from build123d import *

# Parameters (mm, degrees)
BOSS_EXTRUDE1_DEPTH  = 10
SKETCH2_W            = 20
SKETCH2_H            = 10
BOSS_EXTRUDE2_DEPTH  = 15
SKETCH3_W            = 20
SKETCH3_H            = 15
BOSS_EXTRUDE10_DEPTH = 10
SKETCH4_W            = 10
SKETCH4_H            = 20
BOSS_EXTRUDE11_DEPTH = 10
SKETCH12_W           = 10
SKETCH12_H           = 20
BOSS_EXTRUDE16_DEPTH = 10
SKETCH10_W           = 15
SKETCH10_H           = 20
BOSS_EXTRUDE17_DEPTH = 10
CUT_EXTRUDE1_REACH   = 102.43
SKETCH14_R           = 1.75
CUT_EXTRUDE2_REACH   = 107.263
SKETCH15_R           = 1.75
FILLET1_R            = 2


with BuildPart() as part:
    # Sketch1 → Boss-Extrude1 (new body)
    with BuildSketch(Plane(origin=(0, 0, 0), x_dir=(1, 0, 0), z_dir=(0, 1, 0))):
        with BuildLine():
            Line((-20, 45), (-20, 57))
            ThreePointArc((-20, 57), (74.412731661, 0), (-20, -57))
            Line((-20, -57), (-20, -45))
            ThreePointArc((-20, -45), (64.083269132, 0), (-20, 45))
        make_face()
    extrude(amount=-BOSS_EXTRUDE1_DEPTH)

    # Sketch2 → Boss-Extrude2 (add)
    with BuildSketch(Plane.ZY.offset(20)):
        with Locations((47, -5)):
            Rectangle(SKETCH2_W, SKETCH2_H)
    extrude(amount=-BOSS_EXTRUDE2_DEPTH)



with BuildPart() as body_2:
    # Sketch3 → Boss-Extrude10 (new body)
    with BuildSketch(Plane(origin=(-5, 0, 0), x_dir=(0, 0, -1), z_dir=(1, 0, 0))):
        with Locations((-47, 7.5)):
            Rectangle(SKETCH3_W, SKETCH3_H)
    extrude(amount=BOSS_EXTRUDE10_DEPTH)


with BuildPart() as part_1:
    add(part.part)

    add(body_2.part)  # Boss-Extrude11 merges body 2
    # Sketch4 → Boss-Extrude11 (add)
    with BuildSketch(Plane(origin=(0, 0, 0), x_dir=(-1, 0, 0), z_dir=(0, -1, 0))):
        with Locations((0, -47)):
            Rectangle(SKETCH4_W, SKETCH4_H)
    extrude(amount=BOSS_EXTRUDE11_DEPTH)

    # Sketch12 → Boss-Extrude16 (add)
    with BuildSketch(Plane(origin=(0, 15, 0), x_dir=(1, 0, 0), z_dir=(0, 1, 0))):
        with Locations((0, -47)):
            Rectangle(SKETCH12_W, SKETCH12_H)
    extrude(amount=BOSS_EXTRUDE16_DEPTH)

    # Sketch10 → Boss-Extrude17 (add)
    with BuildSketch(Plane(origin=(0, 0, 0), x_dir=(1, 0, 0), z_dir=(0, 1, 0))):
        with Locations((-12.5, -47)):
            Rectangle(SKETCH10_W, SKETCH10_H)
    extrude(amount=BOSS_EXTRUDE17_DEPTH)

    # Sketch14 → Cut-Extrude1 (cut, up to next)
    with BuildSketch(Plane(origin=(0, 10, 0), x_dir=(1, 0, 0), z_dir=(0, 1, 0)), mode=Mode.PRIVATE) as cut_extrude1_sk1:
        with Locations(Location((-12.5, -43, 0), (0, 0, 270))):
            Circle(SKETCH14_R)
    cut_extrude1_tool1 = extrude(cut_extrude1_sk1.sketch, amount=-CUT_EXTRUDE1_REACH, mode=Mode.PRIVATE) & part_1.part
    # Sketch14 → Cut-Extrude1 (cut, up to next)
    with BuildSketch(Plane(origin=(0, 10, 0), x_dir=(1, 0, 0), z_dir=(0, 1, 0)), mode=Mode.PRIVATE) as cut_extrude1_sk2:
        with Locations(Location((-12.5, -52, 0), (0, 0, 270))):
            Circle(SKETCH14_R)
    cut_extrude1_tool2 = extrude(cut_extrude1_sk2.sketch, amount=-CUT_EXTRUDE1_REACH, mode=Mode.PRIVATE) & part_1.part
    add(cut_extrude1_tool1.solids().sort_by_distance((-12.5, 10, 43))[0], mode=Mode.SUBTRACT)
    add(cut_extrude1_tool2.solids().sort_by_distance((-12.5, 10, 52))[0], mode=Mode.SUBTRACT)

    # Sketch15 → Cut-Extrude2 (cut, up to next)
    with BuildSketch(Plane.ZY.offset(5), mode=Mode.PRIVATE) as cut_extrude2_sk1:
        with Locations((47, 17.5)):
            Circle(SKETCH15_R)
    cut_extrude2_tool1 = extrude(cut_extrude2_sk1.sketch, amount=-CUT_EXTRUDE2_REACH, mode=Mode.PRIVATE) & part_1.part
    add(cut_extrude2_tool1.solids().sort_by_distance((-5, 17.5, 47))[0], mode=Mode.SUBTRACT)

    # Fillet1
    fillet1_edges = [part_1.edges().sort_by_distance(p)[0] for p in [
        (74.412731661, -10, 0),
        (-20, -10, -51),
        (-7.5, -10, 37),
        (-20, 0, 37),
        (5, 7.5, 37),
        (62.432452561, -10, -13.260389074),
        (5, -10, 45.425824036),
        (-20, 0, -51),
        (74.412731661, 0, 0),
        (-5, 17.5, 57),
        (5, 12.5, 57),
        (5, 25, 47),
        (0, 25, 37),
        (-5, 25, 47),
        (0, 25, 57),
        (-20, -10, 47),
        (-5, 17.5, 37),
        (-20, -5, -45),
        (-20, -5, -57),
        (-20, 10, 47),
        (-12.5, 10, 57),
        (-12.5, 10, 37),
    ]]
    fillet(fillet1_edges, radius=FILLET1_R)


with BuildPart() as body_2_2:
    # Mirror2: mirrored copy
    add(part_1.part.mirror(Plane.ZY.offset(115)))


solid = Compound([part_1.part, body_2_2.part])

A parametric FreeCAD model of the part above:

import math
import FreeCAD as App
import Part
import Sketcher
from FreeCAD import Vector


def edges_at(feature, points):
    """Names of the edges that pass closest to the given points."""
    edges = feature.Shape.Edges
    near = lambda p: min(range(len(edges)), key=lambda i: edges[i].distToShape(Part.Vertex(*p))[0])
    return sorted({f"Edge{near(p) + 1}" for p in points})

doc = App.newDocument("Part")
body = doc.addObject("PartDesign::Body", "Body")

# Sketch on XZ plane
sketch1 = body.newObject("Sketcher::SketchObject", "Sketch")
sketch1.AttachmentSupport = (doc.getObject("XZ_Plane"), [""])
sketch1.MapMode = "FlatFace"
sketch1.addGeometry([
    Part.LineSegment(Vector(-20, -57, 0), Vector(-20, -45, 0)),
    Part.ArcOfCircle(Part.Circle(Vector(10, 0, 0), Vector(0, 0, 1), 54), math.radians(-124), math.radians(124)),
    Part.LineSegment(Vector(-20, 45, 0), Vector(-20, 57, 0)),
    Part.ArcOfCircle(Part.Circle(Vector(10, 0, 0), Vector(0, 0, 1), 64), math.radians(-118), math.radians(118)),
], False)
sketch1.addConstraint([
    Sketcher.Constraint("Coincident", 0, 2, 1, 1),
    Sketcher.Constraint("Coincident", 1, 2, 2, 1),
    Sketcher.Constraint("Coincident", 2, 2, 3, 2),
    Sketcher.Constraint("Coincident", 3, 1, 0, 1),
    Sketcher.Constraint("Vertical", 0),
    Sketcher.Constraint("Vertical", 2),
    Sketcher.Constraint("Coincident", 3, 3, 1, 3),
    Sketcher.Constraint("Symmetric", 0, 2, 1, 2, -1),
    Sketcher.Constraint("DistanceY", 0, 1, 0, 2, 12.0),
    Sketcher.Constraint("DistanceX", -1, 1, 1, 3, 10.0),
    Sketcher.Constraint("DistanceX", 0, 2, -1, 1, 20.0),
    Sketcher.Constraint("DistanceY", 0, 2, -1, 1, 45.0),
])
pad1 = body.newObject("PartDesign::Pad", "Pad")
pad1.Profile = sketch1
pad1.Length = 10

# Sketch on YZ plane
sketch2 = body.newObject("Sketcher::SketchObject", "Sketch001")
sketch2.AttachmentSupport = (doc.getObject("YZ_Plane"), [""])
sketch2.MapMode = "FlatFace"
sketch2.AttachmentOffset = App.Placement(Vector(0, 0, -20), App.Rotation())
sketch2.addGeometry([
    Part.LineSegment(Vector(0, 37, 0), Vector(-10, 37, 0)),
    Part.LineSegment(Vector(-10, 37, 0), Vector(-10, 57, 0)),
    Part.LineSegment(Vector(-10, 57, 0), Vector(0, 57, 0)),
    Part.LineSegment(Vector(0, 57, 0), Vector(0, 37, 0)),
], False)
sketch2.addConstraint([
    Sketcher.Constraint("Coincident", 0, 2, 1, 1),
    Sketcher.Constraint("Coincident", 1, 2, 2, 1),
    Sketcher.Constraint("Coincident", 2, 2, 3, 1),
    Sketcher.Constraint("Coincident", 3, 2, 0, 1),
    Sketcher.Constraint("Horizontal", 0),
    Sketcher.Constraint("Vertical", 1),
    Sketcher.Constraint("Horizontal", 2),
    Sketcher.Constraint("Vertical", 3),
    Sketcher.Constraint("PointOnObject", 2, 2, -2),
    Sketcher.Constraint("DistanceX", 0, 2, 0, 1, 10.0),
    Sketcher.Constraint("DistanceY", 1, 1, 1, 2, 20.0),
    Sketcher.Constraint("DistanceY", -1, 1, 0, 2, 37.0),
])
pad2 = body.newObject("PartDesign::Pad", "Pad001")
pad2.Profile = sketch2
pad2.Length = 15
body2 = doc.addObject("PartDesign::Body", "Body001")

# Sketch on YZ plane
sketch3 = body2.newObject("Sketcher::SketchObject", "Sketch002")
sketch3.AttachmentSupport = (doc.getObject("YZ_Plane001"), [""])
sketch3.MapMode = "FlatFace"
sketch3.AttachmentOffset = App.Placement(Vector(0, 0, -5), App.Rotation())
sketch3.addGeometry([
    Part.LineSegment(Vector(15, 57, 0), Vector(0, 57, 0)),
    Part.LineSegment(Vector(0, 57, 0), Vector(0, 37, 0)),
    Part.LineSegment(Vector(0, 37, 0), Vector(15, 37, 0)),
    Part.LineSegment(Vector(15, 37, 0), Vector(15, 57, 0)),
], False)
sketch3.addConstraint([
    Sketcher.Constraint("Coincident", 0, 2, 1, 1),
    Sketcher.Constraint("Coincident", 1, 2, 2, 1),
    Sketcher.Constraint("Coincident", 2, 2, 3, 1),
    Sketcher.Constraint("Coincident", 3, 2, 0, 1),
    Sketcher.Constraint("Horizontal", 0),
    Sketcher.Constraint("Vertical", 1),
    Sketcher.Constraint("Horizontal", 2),
    Sketcher.Constraint("Vertical", 3),
    Sketcher.Constraint("PointOnObject", 0, 2, -2),
    Sketcher.Constraint("DistanceX", 0, 2, 0, 1, 15.0),
    Sketcher.Constraint("DistanceY", 1, 2, 1, 1, 20.0),
    Sketcher.Constraint("DistanceY", -1, 1, 0, 2, 57.0),
])
pad3 = body2.newObject("PartDesign::Pad", "Pad002")
pad3.Profile = sketch3
pad3.Length = 10
doc.recompute()

boolean = body.newObject("PartDesign::Boolean", "Boolean")
boolean.Type = "Fuse"
boolean.addObjects([body2])

# Sketch on XZ plane
sketch4 = body.newObject("Sketcher::SketchObject", "Sketch003")
sketch4.AttachmentSupport = (doc.getObject("XZ_Plane"), [""])
sketch4.MapMode = "FlatFace"
sketch4.addGeometry([
    Part.LineSegment(Vector(5, 37, 0), Vector(5, 57, 0)),
    Part.LineSegment(Vector(5, 57, 0), Vector(-5, 57, 0)),
    Part.LineSegment(Vector(-5, 57, 0), Vector(-5, 37, 0)),
    Part.LineSegment(Vector(-5, 37, 0), Vector(5, 37, 0)),
], False)
sketch4.addConstraint([
    Sketcher.Constraint("Coincident", 0, 2, 1, 1),
    Sketcher.Constraint("Coincident", 1, 2, 2, 1),
    Sketcher.Constraint("Coincident", 2, 2, 3, 1),
    Sketcher.Constraint("Coincident", 3, 2, 0, 1),
    Sketcher.Constraint("Vertical", 0),
    Sketcher.Constraint("Horizontal", 1),
    Sketcher.Constraint("Vertical", 2),
    Sketcher.Constraint("Horizontal", 3),
    Sketcher.Constraint("DistanceX", 1, 2, 1, 1, 10.0),
    Sketcher.Constraint("DistanceY", 0, 1, 0, 2, 20.0),
    Sketcher.Constraint("DistanceX", -1, 1, 0, 2, 5.0),
    Sketcher.Constraint("DistanceY", -1, 1, 0, 2, 57.0),
])
pad4 = body.newObject("PartDesign::Pad", "Pad003")
pad4.Profile = sketch4
pad4.Length = 10

# Sketch on XZ plane
sketch5 = body.newObject("Sketcher::SketchObject", "Sketch004")
sketch5.AttachmentSupport = (doc.getObject("XZ_Plane"), [""])
sketch5.MapMode = "FlatFace"
sketch5.AttachmentOffset = App.Placement(Vector(0, 0, -15), App.Rotation())
sketch5.addGeometry([
    Part.LineSegment(Vector(-5, 37, 0), Vector(-5, 57, 0)),
    Part.LineSegment(Vector(-5, 57, 0), Vector(5, 57, 0)),
    Part.LineSegment(Vector(5, 57, 0), Vector(5, 37, 0)),
    Part.LineSegment(Vector(5, 37, 0), Vector(-5, 37, 0)),
], False)
sketch5.addConstraint([
    Sketcher.Constraint("Coincident", 0, 2, 1, 1),
    Sketcher.Constraint("Coincident", 1, 2, 2, 1),
    Sketcher.Constraint("Coincident", 2, 2, 3, 1),
    Sketcher.Constraint("Coincident", 3, 2, 0, 1),
    Sketcher.Constraint("Vertical", 0),
    Sketcher.Constraint("Horizontal", 1),
    Sketcher.Constraint("Vertical", 2),
    Sketcher.Constraint("Horizontal", 3),
    Sketcher.Constraint("DistanceX", 1, 1, 1, 2, 10.0),
    Sketcher.Constraint("DistanceY", 0, 1, 0, 2, 20.0),
    Sketcher.Constraint("DistanceX", 0, 2, -1, 1, 5.0),
    Sketcher.Constraint("DistanceY", -1, 1, 0, 2, 57.0),
])
pad5 = body.newObject("PartDesign::Pad", "Pad004")
pad5.Profile = sketch5
pad5.Length = 10
pad5.Reversed = True

# Sketch on XZ plane
sketch6 = body.newObject("Sketcher::SketchObject", "Sketch005")
sketch6.AttachmentSupport = (doc.getObject("XZ_Plane"), [""])
sketch6.MapMode = "FlatFace"
sketch6.addGeometry([
    Part.LineSegment(Vector(-20, 37, 0), Vector(-20, 57, 0)),
    Part.LineSegment(Vector(-20, 57, 0), Vector(-5, 57, 0)),
    Part.LineSegment(Vector(-5, 57, 0), Vector(-5, 37, 0)),
    Part.LineSegment(Vector(-5, 37, 0), Vector(-20, 37, 0)),
], False)
sketch6.addConstraint([
    Sketcher.Constraint("Coincident", 0, 2, 1, 1),
    Sketcher.Constraint("Coincident", 1, 2, 2, 1),
    Sketcher.Constraint("Coincident", 2, 2, 3, 1),
    Sketcher.Constraint("Coincident", 3, 2, 0, 1),
    Sketcher.Constraint("Vertical", 0),
    Sketcher.Constraint("Horizontal", 1),
    Sketcher.Constraint("Vertical", 2),
    Sketcher.Constraint("Horizontal", 3),
    Sketcher.Constraint("DistanceX", 1, 1, 1, 2, 15.0),
    Sketcher.Constraint("DistanceY", 0, 1, 0, 2, 20.0),
    Sketcher.Constraint("DistanceX", 0, 2, -1, 1, 20.0),
    Sketcher.Constraint("DistanceY", -1, 1, 0, 2, 57.0),
])
pad6 = body.newObject("PartDesign::Pad", "Pad005")
pad6.Profile = sketch6
pad6.Length = 10
pad6.Reversed = True

# Sketch on XZ plane
sketch7 = body.newObject("Sketcher::SketchObject", "Sketch006")
sketch7.AttachmentSupport = (doc.getObject("XZ_Plane"), [""])
sketch7.MapMode = "FlatFace"
sketch7.AttachmentOffset = App.Placement(Vector(0, 0, -10), App.Rotation())
sketch7.addGeometry(Part.Circle(Vector(-12.5, 43, 0), Vector(0, 0, 1), 1.8), False)
sketch7.addConstraint([
    Sketcher.Constraint("Diameter", 0, 3.5),
    Sketcher.Constraint("DistanceY", -1, 1, 0, 3, 43.0),
    Sketcher.Constraint("DistanceX", 0, 3, -1, 1, 12.5),
])
pocket1 = body.newObject("PartDesign::Pocket", "Pocket")
pocket1.Profile = sketch7
pocket1.Type = "UpToFirst"
pocket1.Reversed = True

# Sketch on XZ plane
sketch8 = body.newObject("Sketcher::SketchObject", "Sketch007")
sketch8.AttachmentSupport = (doc.getObject("XZ_Plane"), [""])
sketch8.MapMode = "FlatFace"
sketch8.AttachmentOffset = App.Placement(Vector(0, 0, -10), App.Rotation())
sketch8.addGeometry(Part.Circle(Vector(-12.5, 52, 0), Vector(0, 0, 1), 1.8), False)
sketch8.addConstraint([
    Sketcher.Constraint("Diameter", 0, 3.5),
    Sketcher.Constraint("DistanceY", -1, 1, 0, 3, 52.0),
    Sketcher.Constraint("DistanceX", 0, 3, -1, 1, 12.5),
])
pocket2 = body.newObject("PartDesign::Pocket", "Pocket001")
pocket2.Profile = sketch8
pocket2.Type = "UpToFirst"
pocket2.Reversed = True

# Sketch on YZ plane
sketch9 = body.newObject("Sketcher::SketchObject", "Sketch008")
sketch9.AttachmentSupport = (doc.getObject("YZ_Plane"), [""])
sketch9.MapMode = "FlatFace"
sketch9.AttachmentOffset = App.Placement(Vector(0, 0, -5), App.Rotation())
sketch9.addGeometry(Part.Circle(Vector(17.5, 47, 0), Vector(0, 0, 1), 1.8), False)
sketch9.addConstraint([
    Sketcher.Constraint("Diameter", 0, 3.5),
    Sketcher.Constraint("DistanceY", -1, 1, 0, 3, 47.0),
    Sketcher.Constraint("DistanceX", -1, 1, 0, 3, 17.5),
])
pocket3 = body.newObject("PartDesign::Pocket", "Pocket002")
pocket3.Profile = sketch9
pocket3.Type = "UpToFirst"
pocket3.Reversed = True
doc.recompute()

fillet = body.newObject("PartDesign::Fillet", "Fillet")
fillet.Base = (pocket3, edges_at(pocket3, [
    (74.413, -10, 0),
    (-20, -10, -51),
    (-7.5, -10, 37),
    (-20, 0, 37),
    (5, 7.5, 37),
    (62.432, -10, -13.26),
    (5, -10, 45.426),
    (-20, 0, -51),
    (74.413, 0, 0),
    (-5, 17.5, 57),
    (5, 12.5, 57),
    (5, 25, 47),
    (0, 25, 37),
    (-5, 25, 47),
    (0, 25, 57),
    (-20, -10, 47),
    (-5, 17.5, 37),
    (-20, -5, -45),
    (-20, -5, -57),
    (-20, 10, 47),
    (-12.5, 10, 57),
    (-12.5, 10, 37),
]))
fillet.Radius = 2
body3 = doc.addObject("PartDesign::Body", "Body002")
doc.recompute()

mirroring = doc.addObject("Part::Mirroring", "Mirroring")
mirroring.Source = body
mirroring.Base = Vector(-115, 0, 0)
mirroring.Normal = Vector(-1, 0, 0)
body3.BaseFeature = mirroring
doc.recompute()
mirroring.Visibility = False

doc.recompute()
